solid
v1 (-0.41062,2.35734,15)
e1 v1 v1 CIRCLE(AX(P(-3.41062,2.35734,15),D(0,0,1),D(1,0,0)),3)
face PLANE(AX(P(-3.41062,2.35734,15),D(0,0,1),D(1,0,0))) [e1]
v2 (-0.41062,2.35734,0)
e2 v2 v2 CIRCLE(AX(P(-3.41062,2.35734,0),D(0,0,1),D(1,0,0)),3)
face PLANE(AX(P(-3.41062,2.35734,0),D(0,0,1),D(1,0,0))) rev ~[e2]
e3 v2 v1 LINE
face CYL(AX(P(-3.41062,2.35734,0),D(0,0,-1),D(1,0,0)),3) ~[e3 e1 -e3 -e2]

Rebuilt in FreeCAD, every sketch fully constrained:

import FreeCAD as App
import Part
import Sketcher
from FreeCAD import Vector
Q = App.Units.Quantity

doc = App.newDocument("Part")
params = doc.addObject("Spreadsheet::Sheet", "Params")
for row, (alias, value) in enumerate([
    ("sketch1_diameter", "6 mm"),
    ("pad1_length", "15 mm"),
], start=1):
    params.set(f"A{row}", alias)
    params.set(f"B{row}", "=" + value)
    params.setAlias(f"B{row}", alias)

body = doc.addObject("PartDesign::Body", "Body")

sketch1 = body.newObject("Sketcher::SketchObject", "Sketch")
sketch1.AttachmentSupport = (doc.getObject("XY_Plane"), [""])
sketch1.MapMode = "FlatFace"
sketch1.addGeometry(Part.Circle(Vector(-3.41062, 2.35734, 0), Vector(0, 0, 1), 3), False)
sketch1.addConstraint(Sketcher.Constraint("Diameter", 0, Q("6 mm")))
sketch1.addConstraint(Sketcher.Constraint("DistanceX", 0, 3, -1, 1, Q("3.41062 mm")))
sketch1.addConstraint(Sketcher.Constraint("DistanceY", -1, 1, 0, 3, Q("2.35734 mm")))
sketch1.setExpression("Constraints[0]", "Params.sketch1_diameter")
pad1 = body.newObject("PartDesign::Pad", "Pad")
pad1.Profile = sketch1
pad1.setExpression("Length", "Params.pad1_length")

doc.recompute()
